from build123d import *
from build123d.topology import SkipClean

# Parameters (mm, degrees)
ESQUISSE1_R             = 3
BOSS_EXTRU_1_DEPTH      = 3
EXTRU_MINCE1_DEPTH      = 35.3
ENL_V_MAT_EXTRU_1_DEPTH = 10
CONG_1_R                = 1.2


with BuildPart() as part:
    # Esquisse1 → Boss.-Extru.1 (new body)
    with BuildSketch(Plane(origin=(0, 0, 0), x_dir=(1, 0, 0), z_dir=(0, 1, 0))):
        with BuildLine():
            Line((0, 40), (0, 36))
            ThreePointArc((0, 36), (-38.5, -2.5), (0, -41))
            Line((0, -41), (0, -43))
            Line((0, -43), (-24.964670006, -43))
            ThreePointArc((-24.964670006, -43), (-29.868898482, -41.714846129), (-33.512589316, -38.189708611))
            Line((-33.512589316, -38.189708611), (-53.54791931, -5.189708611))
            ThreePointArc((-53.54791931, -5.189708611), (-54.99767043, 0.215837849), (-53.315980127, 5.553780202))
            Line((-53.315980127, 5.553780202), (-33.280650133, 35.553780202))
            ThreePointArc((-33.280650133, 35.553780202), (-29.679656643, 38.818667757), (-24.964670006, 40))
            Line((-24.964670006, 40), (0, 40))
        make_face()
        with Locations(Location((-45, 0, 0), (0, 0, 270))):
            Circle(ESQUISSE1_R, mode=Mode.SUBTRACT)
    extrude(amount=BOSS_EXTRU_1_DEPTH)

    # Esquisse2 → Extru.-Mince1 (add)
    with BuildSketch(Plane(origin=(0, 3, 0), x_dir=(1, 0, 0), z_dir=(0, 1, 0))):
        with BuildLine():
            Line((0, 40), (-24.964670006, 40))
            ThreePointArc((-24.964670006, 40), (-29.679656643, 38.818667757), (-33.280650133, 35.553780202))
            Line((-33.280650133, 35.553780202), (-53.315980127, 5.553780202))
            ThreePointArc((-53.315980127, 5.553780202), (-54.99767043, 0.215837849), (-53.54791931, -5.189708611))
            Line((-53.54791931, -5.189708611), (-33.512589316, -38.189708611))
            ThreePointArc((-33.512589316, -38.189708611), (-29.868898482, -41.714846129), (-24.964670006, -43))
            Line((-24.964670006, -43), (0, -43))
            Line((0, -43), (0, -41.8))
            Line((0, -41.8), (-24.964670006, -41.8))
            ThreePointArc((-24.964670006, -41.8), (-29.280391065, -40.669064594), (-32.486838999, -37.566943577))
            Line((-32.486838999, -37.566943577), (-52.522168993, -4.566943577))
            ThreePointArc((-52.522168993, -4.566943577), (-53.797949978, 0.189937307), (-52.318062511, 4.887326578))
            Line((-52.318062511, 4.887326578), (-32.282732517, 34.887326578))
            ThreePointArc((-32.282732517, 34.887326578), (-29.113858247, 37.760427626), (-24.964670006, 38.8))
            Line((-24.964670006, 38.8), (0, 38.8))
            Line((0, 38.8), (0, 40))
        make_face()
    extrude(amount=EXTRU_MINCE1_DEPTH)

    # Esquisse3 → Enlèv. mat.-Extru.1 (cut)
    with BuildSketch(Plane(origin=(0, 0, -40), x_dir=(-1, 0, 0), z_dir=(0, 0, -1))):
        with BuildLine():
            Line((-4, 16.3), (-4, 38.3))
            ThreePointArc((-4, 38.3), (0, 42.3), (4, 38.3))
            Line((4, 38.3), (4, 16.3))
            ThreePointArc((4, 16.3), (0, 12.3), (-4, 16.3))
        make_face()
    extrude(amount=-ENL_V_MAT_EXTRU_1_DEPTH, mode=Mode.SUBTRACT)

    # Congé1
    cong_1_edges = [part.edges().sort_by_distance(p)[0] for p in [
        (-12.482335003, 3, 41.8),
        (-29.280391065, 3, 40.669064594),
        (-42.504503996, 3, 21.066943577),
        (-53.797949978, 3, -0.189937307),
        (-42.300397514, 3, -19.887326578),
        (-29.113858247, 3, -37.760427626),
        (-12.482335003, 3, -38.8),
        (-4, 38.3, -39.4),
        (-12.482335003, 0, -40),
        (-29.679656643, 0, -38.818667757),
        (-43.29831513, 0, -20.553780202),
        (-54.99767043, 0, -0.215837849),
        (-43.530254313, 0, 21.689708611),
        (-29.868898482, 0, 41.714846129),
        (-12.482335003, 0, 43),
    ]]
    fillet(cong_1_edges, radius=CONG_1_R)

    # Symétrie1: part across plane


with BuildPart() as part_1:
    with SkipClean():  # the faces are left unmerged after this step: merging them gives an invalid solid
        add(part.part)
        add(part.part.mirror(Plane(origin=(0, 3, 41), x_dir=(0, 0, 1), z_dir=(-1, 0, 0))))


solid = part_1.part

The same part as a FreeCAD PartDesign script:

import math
import FreeCAD as App
import Part
import Sketcher
from FreeCAD import Vector
Q = App.Units.Quantity


def edges_at(feature, points):
    """Names of the edges that pass closest to the given points."""
    edges = feature.Shape.Edges
    near = lambda p: min(range(len(edges)), key=lambda i: edges[i].distToShape(Part.Vertex(*p))[0])
    return sorted({f"Edge{near(p) + 1}" for p in points})

doc = App.newDocument("Part")
body = doc.addObject("PartDesign::Body", "Body")

# Sketch on XZ plane
sketch1 = body.newObject("Sketcher::SketchObject", "Sketch")
sketch1.AttachmentSupport = (doc.getObject("XZ_Plane"), [""])
sketch1.MapMode = "FlatFace"
sketch1.addGeometry([
    Part.LineSegment(Vector(0, -36, 0), Vector(0, -40, 0)),  # 0
    Part.LineSegment(Vector(0, -40, 0), Vector(-25, -40, 0)),  # 1
    Part.ArcOfCircle(Part.Circle(Vector(-25, -30, 0), Vector(0, 0, 1), 10), math.radians(-146), math.radians(-90)),  # 2
    Part.LineSegment(Vector(-33.3, -35.6, 0), Vector(-53.3, -5.6, 0)),  # 3
    Part.ArcOfCircle(Part.Circle(Vector(-45, 0, 0), Vector(0, 0, 1), 10), math.radians(149), math.radians(214)),  # 4
    Part.LineSegment(Vector(-53.5, 5.2, 0), Vector(-33.5, 38.2, 0)),  # 5
    Part.ArcOfCircle(Part.Circle(Vector(-25, 33, 0), Vector(0, 0, 1), 10), math.radians(90), math.radians(149)),  # 6
    Part.LineSegment(Vector(-25, 43, 0), Vector(0, 43, 0)),  # 7
    Part.LineSegment(Vector(0, 43, 0), Vector(0, 41, 0)),  # 8
    Part.ArcOfCircle(Part.Circle(Vector(0, 2.5, 0), Vector(0, 0, 1), 38.5), math.radians(90), math.radians(270)),  # 9
    Part.Circle(Vector(-45, 0, 0), Vector(0, 0, 1), 3),  # 10
], False)
sketch1.addConstraint([
    Sketcher.Constraint("Coincident", 0, 2, 1, 1),
    Sketcher.Constraint("Tangent", 1, 2, 2, 2),
    Sketcher.Constraint("Tangent", 2, 1, 3, 1),
    Sketcher.Constraint("Tangent", 3, 2, 4, 2),
    Sketcher.Constraint("Tangent", 4, 1, 5, 1),
    Sketcher.Constraint("Tangent", 5, 2, 6, 2),
    Sketcher.Constraint("Tangent", 6, 1, 7, 1),
    Sketcher.Constraint("Coincident", 7, 2, 8, 1),
    Sketcher.Constraint("Coincident", 8, 2, 9, 1),
    Sketcher.Constraint("Coincident", 9, 2, 0, 1),
    Sketcher.Constraint("Vertical", 0),
    Sketcher.Constraint("Horizontal", 1),
    Sketcher.Constraint("Horizontal", 7),
    Sketcher.Constraint("Vertical", 8),
    Sketcher.Constraint("Coincident", 10, 3, 4, 3),
    Sketcher.Constraint("Equal", 2, 4),
    Sketcher.Constraint("Equal", 4, 6),
    Sketcher.Constraint("PointOnObject", 4, 3, -1),
    Sketcher.Constraint("PointOnObject", 9, 3, -2),
    Sketcher.Constraint("PointOnObject", 0, 2, -2),
    Sketcher.Constraint("PointOnObject", 7, 2, -2),
    Sketcher.Constraint("Vertical", 2, 3, 6, 3),
    Sketcher.Constraint("Diameter", 10, Q("6 mm")),
    Sketcher.Constraint("Radius", 2, Q("10 mm")),
    Sketcher.Constraint("Radius", 9, Q("38.5 mm")),
    Sketcher.Constraint("DistanceY", 0, 2, 0, 1, Q("4 mm")),
    Sketcher.Constraint("DistanceY", 8, 2, 8, 1, Q("2 mm")),
    Sketcher.Constraint("DistanceY", 2, 3, -1, 1, Q("30 mm")),
    Sketcher.Constraint("DistanceX", 4, 3, -1, 1, Q("45 mm")),
    Sketcher.Constraint("DistanceX", 1, 2, 1, 1, Q("24.96467 mm")),
])
pad1 = body.newObject("PartDesign::Pad", "Pad")
pad1.Profile = sketch1
pad1.Length = 3
pad1.Reversed = True

# Sketch on XZ plane
sketch2 = body.newObject("Sketcher::SketchObject", "Sketch001")
sketch2.AttachmentSupport = (doc.getObject("XZ_Plane"), [""])
sketch2.MapMode = "FlatFace"
sketch2.AttachmentOffset = App.Placement(Vector(0, 0, -3), App.Rotation())
sketch2.addGeometry([
    Part.LineSegment(Vector(0, -40, 0), Vector(-25, -40, 0)),  # 0
    Part.ArcOfCircle(Part.Circle(Vector(-25, -30, 0), Vector(0, 0, 1), 10), math.radians(-146), math.radians(-90)),  # 1
    Part.LineSegment(Vector(-33.3, -35.6, 0), Vector(-53.3, -5.6, 0)),  # 2
    Part.ArcOfCircle(Part.Circle(Vector(-45, 0, 0), Vector(0, 0, 1), 10), math.radians(149), math.radians(214)),  # 3
    Part.LineSegment(Vector(-53.5, 5.2, 0), Vector(-33.5, 38.2, 0)),  # 4
    Part.ArcOfCircle(Part.Circle(Vector(-25, 33, 0), Vector(0, 0, 1), 10), math.radians(90), math.radians(149)),  # 5
    Part.LineSegment(Vector(-25, 43, 0), Vector(0, 43, 0)),  # 6
    Part.LineSegment(Vector(0, 43, 0), Vector(0, 41.8, 0)),  # 7
    Part.LineSegment(Vector(0, 41.8, 0), Vector(-25, 41.8, 0)),  # 8
    Part.ArcOfCircle(Part.Circle(Vector(-25, 33, 0), Vector(0, 0, 1), 8.8), math.radians(90), math.radians(149)),  # 9
    Part.LineSegment(Vector(-32.5, 37.6, 0), Vector(-52.5, 4.6, 0)),  # 10
    Part.ArcOfCircle(Part.Circle(Vector(-45, 0, 0), Vector(0, 0, 1), 8.8), math.radians(149), math.radians(214)),  # 11
    Part.LineSegment(Vector(-52.3, -4.9, 0), Vector(-32.3, -34.9, 0)),  # 12
    Part.ArcOfCircle(Part.Circle(Vector(-25, -30, 0), Vector(0, 0, 1), 8.8), math.radians(-146), math.radians(-90)),  # 13
    Part.LineSegment(Vector(-25, -38.8, 0), Vector(0, -38.8, 0)),  # 14
    Part.LineSegment(Vector(0, -38.8, 0), Vector(0, -40, 0)),  # 15
], False)
sketch2.addConstraint([
    Sketcher.Constraint("Tangent", 0, 2, 1, 2),
    Sketcher.Constraint("Tangent", 1, 1, 2, 1),
    Sketcher.Constraint("Tangent", 2, 2, 3, 2),
    Sketcher.Constraint("Tangent", 3, 1, 4, 1),
    Sketcher.Constraint("Tangent", 4, 2, 5, 2),
    Sketcher.Constraint("Tangent", 5, 1, 6, 1),
    Sketcher.Constraint("Coincident", 6, 2, 7, 1),
    Sketcher.Constraint("Coincident", 7, 2, 8, 1),
    Sketcher.Constraint("Tangent", 8, 2, 9, 1),
    Sketcher.Constraint("Tangent", 9, 2, 10, 1),
    Sketcher.Constraint("Tangent", 10, 2, 11, 1),
    Sketcher.Constraint("Tangent", 11, 2, 12, 1),
    Sketcher.Constraint("Tangent", 12, 2, 13, 1),
    Sketcher.Constraint("Tangent", 13, 2, 14, 1),
    Sketcher.Constraint("Coincident", 14, 2, 15, 1),
    Sketcher.Constraint("Coincident", 15, 2, 0, 1),
    Sketcher.Constraint("Horizontal", 0),
    Sketcher.Constraint("Horizontal", 6),
    Sketcher.Constraint("Vertical", 7),
    Sketcher.Constraint("Horizontal", 8),
    Sketcher.Constraint("Horizontal", 14),
    Sketcher.Constraint("Vertical", 15),
    Sketcher.Constraint("Coincident", 9, 3, 5, 3),
    Sketcher.Constraint("Coincident", 11, 3, 3, 3),
    Sketcher.Constraint("Coincident", 13, 3, 1, 3),
    Sketcher.Constraint("Equal", 1, 3),
    Sketcher.Constraint("Equal", 3, 5),
    Sketcher.Constraint("Equal", 9, 11),
    Sketcher.Constraint("Equal", 11, 13),
    Sketcher.Constraint("PointOnObject", 3, 3, -1),
    Sketcher.Constraint("PointOnObject", 6, 2, -2),
    Sketcher.Constraint("PointOnObject", 14, 2, -2),
    Sketcher.Constraint("Vertical", 1, 3, 5, 3),
    Sketcher.Constraint("Radius", 1, Q("10 mm")),
    Sketcher.Constraint("Radius", 9, Q("8.8 mm")),
    Sketcher.Constraint("DistanceY", 1, 3, -1, 1, Q("30 mm")),
    Sketcher.Constraint("DistanceX", 3, 3, -1, 1, Q("45 mm")),
    Sketcher.Constraint("DistanceY", -1, 1, 5, 3, Q("33 mm")),
    Sketcher.Constraint("DistanceX", 0, 2, 0, 1, Q("24.96467 mm")),
])
pad2 = body.newObject("PartDesign::Pad", "Pad001")
pad2.Profile = sketch2
pad2.Length = 35.3
pad2.Reversed = True

# Sketch on XY plane
sketch3 = body.newObject("Sketcher::SketchObject", "Sketch002")
sketch3.AttachmentSupport = (doc.getObject("XY_Plane"), [""])
sketch3.MapMode = "FlatFace"
sketch3.AttachmentOffset = App.Placement(Vector(0, 0, -40), App.Rotation())
sketch3.addGeometry([
    Part.LineSegment(Vector(4, 38.3, 0), Vector(4, 16.3, 0)),
    Part.ArcOfCircle(Part.Circle(Vector(0, 16.3, 0), Vector(0, 0, 1), 4), math.radians(180), math.radians(360)),
    Part.LineSegment(Vector(-4, 16.3, 0), Vector(-4, 38.3, 0)),
    Part.ArcOfCircle(Part.Circle(Vector(0, 38.3, 0), Vector(0, 0, 1), 4), math.radians(0), math.radians(180)),
], False)
sketch3.addConstraint([
    Sketcher.Constraint("Tangent", 0, 2, 1, 2),
    Sketcher.Constraint("Tangent", 1, 1, 2, 1),
    Sketcher.Constraint("Tangent", 2, 2, 3, 2),
    Sketcher.Constraint("Tangent", 3, 1, 0, 1),
    Sketcher.Constraint("Vertical", 0),
    Sketcher.Constraint("Vertical", 2),
    Sketcher.Constraint("PointOnObject", 1, 3, -2),
    Sketcher.Constraint("Radius", 1, Q("4 mm")),
    Sketcher.Constraint("DistanceY", 0, 2, 0, 1, Q("22 mm")),
    Sketcher.Constraint("DistanceY", -1, 1, 1, 3, Q("16.3 mm")),
])
pocket1 = body.newObject("PartDesign::Pocket", "Pocket")
pocket1.Profile = sketch3
pocket1.Length = 10
pocket1.Reversed = True
doc.recompute()

fillet = body.newObject("PartDesign::Fillet", "Fillet")
fillet.Base = (pocket1, edges_at(pocket1, [
    (-12.482, 3, 41.8),
    (-29.28, 3, 40.669),
    (-42.505, 3, 21.067),
    (-53.798, 3, -0.19),
    (-42.3, 3, -19.887),
    (-29.114, 3, -37.76),
    (-12.482, 3, -38.8),
    (-4, 38.3, -39.4),
    (-12.482, 0, -40),
    (-29.68, 0, -38.819),
    (-43.298, 0, -20.554),
    (-54.998, 0, -0.216),
    (-43.53, 0, 21.69),
    (-29.869, 0, 41.715),
    (-12.482, 0, 43),
]))
fillet.Radius = 1.2
body2 = doc.addObject("PartDesign::Body", "Body001")
doc.recompute()

body2.BaseFeature = body
doc.recompute()

mirroring = doc.addObject("Part::Mirroring", "Mirroring")
mirroring.Source = body
mirroring.Base = Vector(0, 3, 41)
mirroring.Normal = Vector(-1, 0, 0)
body3 = doc.addObject("PartDesign::Body", "Body002")
body3.BaseFeature = mirroring
boolean = body2.newObject("PartDesign::Boolean", "Boolean")
boolean.Type = "Fuse"
boolean.addObjects([body3])
doc.recompute()
mirroring.Visibility = False

doc.recompute()
